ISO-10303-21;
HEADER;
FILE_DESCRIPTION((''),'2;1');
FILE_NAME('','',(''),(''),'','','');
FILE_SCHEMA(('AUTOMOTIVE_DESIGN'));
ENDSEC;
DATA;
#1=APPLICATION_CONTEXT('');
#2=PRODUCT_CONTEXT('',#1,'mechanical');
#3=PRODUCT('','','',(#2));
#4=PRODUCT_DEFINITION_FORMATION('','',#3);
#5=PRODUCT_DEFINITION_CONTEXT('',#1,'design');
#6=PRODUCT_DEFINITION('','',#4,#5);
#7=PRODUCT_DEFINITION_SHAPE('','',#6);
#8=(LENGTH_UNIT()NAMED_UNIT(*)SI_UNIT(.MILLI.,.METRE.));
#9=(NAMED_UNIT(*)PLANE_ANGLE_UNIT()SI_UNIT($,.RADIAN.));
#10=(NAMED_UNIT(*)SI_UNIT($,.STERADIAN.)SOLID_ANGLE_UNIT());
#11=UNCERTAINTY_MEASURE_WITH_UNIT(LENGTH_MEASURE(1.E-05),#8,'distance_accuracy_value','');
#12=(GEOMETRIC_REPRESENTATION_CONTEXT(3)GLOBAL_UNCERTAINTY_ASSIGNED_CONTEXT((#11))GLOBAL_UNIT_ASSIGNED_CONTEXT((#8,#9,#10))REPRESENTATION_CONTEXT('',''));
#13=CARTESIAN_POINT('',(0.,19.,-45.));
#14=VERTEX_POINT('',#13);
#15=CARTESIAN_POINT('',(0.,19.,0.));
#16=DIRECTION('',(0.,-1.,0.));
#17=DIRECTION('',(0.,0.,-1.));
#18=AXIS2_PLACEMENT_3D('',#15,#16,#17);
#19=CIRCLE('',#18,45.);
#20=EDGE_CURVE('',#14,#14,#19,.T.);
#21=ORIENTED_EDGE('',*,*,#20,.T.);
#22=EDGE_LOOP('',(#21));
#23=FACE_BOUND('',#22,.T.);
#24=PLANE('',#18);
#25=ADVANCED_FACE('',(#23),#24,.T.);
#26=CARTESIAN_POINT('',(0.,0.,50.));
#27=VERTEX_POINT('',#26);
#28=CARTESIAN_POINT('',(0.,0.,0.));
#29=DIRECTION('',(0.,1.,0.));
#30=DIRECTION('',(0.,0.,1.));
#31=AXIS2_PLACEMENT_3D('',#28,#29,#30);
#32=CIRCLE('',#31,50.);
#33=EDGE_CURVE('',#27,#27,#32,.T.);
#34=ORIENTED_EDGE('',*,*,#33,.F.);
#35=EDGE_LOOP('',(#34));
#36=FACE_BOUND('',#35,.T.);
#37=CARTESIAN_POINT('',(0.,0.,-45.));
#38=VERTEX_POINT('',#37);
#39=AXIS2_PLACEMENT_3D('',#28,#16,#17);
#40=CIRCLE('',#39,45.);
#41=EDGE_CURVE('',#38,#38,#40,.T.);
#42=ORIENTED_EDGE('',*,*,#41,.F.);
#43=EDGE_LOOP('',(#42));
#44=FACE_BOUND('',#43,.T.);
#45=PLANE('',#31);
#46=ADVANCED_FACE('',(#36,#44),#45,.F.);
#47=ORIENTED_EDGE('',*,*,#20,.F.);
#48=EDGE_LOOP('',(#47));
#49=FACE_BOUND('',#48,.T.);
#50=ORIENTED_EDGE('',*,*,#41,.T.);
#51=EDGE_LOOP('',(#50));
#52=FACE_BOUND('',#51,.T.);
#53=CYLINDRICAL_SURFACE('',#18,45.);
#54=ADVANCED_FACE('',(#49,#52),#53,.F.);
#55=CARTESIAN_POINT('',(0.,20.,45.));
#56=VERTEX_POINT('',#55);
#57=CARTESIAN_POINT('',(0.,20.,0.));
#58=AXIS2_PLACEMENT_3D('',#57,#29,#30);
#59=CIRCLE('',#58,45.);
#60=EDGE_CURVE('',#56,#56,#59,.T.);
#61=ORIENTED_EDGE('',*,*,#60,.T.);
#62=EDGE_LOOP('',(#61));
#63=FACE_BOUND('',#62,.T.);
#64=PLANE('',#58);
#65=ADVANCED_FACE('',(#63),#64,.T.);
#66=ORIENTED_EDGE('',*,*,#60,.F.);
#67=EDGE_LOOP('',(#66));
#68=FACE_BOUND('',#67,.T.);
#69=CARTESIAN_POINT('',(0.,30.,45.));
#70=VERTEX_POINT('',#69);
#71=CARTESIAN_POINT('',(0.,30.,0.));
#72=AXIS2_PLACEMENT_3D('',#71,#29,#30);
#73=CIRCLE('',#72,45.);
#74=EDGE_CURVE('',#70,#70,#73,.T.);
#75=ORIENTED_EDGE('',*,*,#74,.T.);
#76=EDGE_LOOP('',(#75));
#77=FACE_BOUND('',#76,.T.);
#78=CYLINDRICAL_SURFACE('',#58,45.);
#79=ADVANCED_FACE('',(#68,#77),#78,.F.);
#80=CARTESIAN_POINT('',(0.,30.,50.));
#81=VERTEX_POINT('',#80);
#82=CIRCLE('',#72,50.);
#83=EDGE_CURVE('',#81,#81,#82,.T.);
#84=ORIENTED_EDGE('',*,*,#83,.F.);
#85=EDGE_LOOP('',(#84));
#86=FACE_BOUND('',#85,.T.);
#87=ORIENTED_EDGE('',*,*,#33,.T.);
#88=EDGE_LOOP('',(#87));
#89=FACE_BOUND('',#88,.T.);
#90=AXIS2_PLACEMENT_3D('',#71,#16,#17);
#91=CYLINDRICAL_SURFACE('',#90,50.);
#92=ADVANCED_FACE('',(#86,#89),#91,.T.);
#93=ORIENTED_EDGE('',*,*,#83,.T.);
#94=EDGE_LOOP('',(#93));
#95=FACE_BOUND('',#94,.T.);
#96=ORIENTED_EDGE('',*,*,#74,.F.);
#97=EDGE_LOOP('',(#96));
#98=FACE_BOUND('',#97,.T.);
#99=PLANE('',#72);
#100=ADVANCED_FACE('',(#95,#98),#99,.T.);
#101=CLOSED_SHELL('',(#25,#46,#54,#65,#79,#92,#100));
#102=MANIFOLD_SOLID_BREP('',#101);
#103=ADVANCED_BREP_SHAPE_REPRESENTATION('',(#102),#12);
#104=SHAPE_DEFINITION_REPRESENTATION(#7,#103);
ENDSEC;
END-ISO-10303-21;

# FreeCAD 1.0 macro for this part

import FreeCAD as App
import Part
import Sketcher

V = App.Vector
Q = App.Units.Quantity

doc = App.newDocument("Part")
body = doc.addObject("PartDesign::Body", "Body")

# Sketch on XZ plane
sketch1 = body.newObject("Sketcher::SketchObject", "Sketch")
sketch1.AttachmentSupport = (doc.getObject("XZ_Plane"), [""])
sketch1.MapMode = "FlatFace"
sketch1.addGeometry(Part.Circle(V(0, 0, 0), V(0, 0, 1), 50), False)
sketch1.addConstraint(Sketcher.Constraint("Coincident", 0, 3, -1, 1))
sketch1.addConstraint(Sketcher.Constraint("Diameter", 0, Q("100 mm")))
pad1 = body.newObject("PartDesign::Pad", "Pad")
pad1.Profile = sketch1
pad1.Length = 30
pad1.Reversed = True

# Sketch on XZ plane
sketch2 = body.newObject("Sketcher::SketchObject", "Sketch001")
sketch2.AttachmentSupport = (doc.getObject("XZ_Plane"), [""])
sketch2.MapMode = "FlatFace"
sketch2.AttachmentOffset = App.Placement(V(0, 0, -30), App.Rotation())
sketch2.addGeometry(Part.Circle(V(0, 0, 0), V(0, 0, 1), 45), False)
sketch2.addConstraint(Sketcher.Constraint("Coincident", 0, 3, -1, 1))
sketch2.addConstraint(Sketcher.Constraint("Diameter", 0, Q("90 mm")))
pocket1 = body.newObject("PartDesign::Pocket", "Pocket")
pocket1.Profile = sketch2
pocket1.Length = 10
pocket1.Reversed = True

# Sketch on XZ plane
sketch3 = body.newObject("Sketcher::SketchObject", "Sketch002")
sketch3.AttachmentSupport = (doc.getObject("XZ_Plane"), [""])
sketch3.MapMode = "FlatFace"
sketch3.AttachmentOffset = App.Placement(V(0, 0, -19), App.Rotation())
sketch3.addGeometry(Part.Circle(V(0, 0, 0), V(0, 0, 1), 45), False)
sketch3.addConstraint(Sketcher.Constraint("Coincident", 0, 3, -1, 1))
sketch3.addConstraint(Sketcher.Constraint("Diameter", 0, Q("90 mm")))
pocket2 = body.newObject("PartDesign::Pocket", "Pocket001")
pocket2.Profile = sketch3
pocket2.Length = 19
pocket2.Reversed = True

doc.recompute()
